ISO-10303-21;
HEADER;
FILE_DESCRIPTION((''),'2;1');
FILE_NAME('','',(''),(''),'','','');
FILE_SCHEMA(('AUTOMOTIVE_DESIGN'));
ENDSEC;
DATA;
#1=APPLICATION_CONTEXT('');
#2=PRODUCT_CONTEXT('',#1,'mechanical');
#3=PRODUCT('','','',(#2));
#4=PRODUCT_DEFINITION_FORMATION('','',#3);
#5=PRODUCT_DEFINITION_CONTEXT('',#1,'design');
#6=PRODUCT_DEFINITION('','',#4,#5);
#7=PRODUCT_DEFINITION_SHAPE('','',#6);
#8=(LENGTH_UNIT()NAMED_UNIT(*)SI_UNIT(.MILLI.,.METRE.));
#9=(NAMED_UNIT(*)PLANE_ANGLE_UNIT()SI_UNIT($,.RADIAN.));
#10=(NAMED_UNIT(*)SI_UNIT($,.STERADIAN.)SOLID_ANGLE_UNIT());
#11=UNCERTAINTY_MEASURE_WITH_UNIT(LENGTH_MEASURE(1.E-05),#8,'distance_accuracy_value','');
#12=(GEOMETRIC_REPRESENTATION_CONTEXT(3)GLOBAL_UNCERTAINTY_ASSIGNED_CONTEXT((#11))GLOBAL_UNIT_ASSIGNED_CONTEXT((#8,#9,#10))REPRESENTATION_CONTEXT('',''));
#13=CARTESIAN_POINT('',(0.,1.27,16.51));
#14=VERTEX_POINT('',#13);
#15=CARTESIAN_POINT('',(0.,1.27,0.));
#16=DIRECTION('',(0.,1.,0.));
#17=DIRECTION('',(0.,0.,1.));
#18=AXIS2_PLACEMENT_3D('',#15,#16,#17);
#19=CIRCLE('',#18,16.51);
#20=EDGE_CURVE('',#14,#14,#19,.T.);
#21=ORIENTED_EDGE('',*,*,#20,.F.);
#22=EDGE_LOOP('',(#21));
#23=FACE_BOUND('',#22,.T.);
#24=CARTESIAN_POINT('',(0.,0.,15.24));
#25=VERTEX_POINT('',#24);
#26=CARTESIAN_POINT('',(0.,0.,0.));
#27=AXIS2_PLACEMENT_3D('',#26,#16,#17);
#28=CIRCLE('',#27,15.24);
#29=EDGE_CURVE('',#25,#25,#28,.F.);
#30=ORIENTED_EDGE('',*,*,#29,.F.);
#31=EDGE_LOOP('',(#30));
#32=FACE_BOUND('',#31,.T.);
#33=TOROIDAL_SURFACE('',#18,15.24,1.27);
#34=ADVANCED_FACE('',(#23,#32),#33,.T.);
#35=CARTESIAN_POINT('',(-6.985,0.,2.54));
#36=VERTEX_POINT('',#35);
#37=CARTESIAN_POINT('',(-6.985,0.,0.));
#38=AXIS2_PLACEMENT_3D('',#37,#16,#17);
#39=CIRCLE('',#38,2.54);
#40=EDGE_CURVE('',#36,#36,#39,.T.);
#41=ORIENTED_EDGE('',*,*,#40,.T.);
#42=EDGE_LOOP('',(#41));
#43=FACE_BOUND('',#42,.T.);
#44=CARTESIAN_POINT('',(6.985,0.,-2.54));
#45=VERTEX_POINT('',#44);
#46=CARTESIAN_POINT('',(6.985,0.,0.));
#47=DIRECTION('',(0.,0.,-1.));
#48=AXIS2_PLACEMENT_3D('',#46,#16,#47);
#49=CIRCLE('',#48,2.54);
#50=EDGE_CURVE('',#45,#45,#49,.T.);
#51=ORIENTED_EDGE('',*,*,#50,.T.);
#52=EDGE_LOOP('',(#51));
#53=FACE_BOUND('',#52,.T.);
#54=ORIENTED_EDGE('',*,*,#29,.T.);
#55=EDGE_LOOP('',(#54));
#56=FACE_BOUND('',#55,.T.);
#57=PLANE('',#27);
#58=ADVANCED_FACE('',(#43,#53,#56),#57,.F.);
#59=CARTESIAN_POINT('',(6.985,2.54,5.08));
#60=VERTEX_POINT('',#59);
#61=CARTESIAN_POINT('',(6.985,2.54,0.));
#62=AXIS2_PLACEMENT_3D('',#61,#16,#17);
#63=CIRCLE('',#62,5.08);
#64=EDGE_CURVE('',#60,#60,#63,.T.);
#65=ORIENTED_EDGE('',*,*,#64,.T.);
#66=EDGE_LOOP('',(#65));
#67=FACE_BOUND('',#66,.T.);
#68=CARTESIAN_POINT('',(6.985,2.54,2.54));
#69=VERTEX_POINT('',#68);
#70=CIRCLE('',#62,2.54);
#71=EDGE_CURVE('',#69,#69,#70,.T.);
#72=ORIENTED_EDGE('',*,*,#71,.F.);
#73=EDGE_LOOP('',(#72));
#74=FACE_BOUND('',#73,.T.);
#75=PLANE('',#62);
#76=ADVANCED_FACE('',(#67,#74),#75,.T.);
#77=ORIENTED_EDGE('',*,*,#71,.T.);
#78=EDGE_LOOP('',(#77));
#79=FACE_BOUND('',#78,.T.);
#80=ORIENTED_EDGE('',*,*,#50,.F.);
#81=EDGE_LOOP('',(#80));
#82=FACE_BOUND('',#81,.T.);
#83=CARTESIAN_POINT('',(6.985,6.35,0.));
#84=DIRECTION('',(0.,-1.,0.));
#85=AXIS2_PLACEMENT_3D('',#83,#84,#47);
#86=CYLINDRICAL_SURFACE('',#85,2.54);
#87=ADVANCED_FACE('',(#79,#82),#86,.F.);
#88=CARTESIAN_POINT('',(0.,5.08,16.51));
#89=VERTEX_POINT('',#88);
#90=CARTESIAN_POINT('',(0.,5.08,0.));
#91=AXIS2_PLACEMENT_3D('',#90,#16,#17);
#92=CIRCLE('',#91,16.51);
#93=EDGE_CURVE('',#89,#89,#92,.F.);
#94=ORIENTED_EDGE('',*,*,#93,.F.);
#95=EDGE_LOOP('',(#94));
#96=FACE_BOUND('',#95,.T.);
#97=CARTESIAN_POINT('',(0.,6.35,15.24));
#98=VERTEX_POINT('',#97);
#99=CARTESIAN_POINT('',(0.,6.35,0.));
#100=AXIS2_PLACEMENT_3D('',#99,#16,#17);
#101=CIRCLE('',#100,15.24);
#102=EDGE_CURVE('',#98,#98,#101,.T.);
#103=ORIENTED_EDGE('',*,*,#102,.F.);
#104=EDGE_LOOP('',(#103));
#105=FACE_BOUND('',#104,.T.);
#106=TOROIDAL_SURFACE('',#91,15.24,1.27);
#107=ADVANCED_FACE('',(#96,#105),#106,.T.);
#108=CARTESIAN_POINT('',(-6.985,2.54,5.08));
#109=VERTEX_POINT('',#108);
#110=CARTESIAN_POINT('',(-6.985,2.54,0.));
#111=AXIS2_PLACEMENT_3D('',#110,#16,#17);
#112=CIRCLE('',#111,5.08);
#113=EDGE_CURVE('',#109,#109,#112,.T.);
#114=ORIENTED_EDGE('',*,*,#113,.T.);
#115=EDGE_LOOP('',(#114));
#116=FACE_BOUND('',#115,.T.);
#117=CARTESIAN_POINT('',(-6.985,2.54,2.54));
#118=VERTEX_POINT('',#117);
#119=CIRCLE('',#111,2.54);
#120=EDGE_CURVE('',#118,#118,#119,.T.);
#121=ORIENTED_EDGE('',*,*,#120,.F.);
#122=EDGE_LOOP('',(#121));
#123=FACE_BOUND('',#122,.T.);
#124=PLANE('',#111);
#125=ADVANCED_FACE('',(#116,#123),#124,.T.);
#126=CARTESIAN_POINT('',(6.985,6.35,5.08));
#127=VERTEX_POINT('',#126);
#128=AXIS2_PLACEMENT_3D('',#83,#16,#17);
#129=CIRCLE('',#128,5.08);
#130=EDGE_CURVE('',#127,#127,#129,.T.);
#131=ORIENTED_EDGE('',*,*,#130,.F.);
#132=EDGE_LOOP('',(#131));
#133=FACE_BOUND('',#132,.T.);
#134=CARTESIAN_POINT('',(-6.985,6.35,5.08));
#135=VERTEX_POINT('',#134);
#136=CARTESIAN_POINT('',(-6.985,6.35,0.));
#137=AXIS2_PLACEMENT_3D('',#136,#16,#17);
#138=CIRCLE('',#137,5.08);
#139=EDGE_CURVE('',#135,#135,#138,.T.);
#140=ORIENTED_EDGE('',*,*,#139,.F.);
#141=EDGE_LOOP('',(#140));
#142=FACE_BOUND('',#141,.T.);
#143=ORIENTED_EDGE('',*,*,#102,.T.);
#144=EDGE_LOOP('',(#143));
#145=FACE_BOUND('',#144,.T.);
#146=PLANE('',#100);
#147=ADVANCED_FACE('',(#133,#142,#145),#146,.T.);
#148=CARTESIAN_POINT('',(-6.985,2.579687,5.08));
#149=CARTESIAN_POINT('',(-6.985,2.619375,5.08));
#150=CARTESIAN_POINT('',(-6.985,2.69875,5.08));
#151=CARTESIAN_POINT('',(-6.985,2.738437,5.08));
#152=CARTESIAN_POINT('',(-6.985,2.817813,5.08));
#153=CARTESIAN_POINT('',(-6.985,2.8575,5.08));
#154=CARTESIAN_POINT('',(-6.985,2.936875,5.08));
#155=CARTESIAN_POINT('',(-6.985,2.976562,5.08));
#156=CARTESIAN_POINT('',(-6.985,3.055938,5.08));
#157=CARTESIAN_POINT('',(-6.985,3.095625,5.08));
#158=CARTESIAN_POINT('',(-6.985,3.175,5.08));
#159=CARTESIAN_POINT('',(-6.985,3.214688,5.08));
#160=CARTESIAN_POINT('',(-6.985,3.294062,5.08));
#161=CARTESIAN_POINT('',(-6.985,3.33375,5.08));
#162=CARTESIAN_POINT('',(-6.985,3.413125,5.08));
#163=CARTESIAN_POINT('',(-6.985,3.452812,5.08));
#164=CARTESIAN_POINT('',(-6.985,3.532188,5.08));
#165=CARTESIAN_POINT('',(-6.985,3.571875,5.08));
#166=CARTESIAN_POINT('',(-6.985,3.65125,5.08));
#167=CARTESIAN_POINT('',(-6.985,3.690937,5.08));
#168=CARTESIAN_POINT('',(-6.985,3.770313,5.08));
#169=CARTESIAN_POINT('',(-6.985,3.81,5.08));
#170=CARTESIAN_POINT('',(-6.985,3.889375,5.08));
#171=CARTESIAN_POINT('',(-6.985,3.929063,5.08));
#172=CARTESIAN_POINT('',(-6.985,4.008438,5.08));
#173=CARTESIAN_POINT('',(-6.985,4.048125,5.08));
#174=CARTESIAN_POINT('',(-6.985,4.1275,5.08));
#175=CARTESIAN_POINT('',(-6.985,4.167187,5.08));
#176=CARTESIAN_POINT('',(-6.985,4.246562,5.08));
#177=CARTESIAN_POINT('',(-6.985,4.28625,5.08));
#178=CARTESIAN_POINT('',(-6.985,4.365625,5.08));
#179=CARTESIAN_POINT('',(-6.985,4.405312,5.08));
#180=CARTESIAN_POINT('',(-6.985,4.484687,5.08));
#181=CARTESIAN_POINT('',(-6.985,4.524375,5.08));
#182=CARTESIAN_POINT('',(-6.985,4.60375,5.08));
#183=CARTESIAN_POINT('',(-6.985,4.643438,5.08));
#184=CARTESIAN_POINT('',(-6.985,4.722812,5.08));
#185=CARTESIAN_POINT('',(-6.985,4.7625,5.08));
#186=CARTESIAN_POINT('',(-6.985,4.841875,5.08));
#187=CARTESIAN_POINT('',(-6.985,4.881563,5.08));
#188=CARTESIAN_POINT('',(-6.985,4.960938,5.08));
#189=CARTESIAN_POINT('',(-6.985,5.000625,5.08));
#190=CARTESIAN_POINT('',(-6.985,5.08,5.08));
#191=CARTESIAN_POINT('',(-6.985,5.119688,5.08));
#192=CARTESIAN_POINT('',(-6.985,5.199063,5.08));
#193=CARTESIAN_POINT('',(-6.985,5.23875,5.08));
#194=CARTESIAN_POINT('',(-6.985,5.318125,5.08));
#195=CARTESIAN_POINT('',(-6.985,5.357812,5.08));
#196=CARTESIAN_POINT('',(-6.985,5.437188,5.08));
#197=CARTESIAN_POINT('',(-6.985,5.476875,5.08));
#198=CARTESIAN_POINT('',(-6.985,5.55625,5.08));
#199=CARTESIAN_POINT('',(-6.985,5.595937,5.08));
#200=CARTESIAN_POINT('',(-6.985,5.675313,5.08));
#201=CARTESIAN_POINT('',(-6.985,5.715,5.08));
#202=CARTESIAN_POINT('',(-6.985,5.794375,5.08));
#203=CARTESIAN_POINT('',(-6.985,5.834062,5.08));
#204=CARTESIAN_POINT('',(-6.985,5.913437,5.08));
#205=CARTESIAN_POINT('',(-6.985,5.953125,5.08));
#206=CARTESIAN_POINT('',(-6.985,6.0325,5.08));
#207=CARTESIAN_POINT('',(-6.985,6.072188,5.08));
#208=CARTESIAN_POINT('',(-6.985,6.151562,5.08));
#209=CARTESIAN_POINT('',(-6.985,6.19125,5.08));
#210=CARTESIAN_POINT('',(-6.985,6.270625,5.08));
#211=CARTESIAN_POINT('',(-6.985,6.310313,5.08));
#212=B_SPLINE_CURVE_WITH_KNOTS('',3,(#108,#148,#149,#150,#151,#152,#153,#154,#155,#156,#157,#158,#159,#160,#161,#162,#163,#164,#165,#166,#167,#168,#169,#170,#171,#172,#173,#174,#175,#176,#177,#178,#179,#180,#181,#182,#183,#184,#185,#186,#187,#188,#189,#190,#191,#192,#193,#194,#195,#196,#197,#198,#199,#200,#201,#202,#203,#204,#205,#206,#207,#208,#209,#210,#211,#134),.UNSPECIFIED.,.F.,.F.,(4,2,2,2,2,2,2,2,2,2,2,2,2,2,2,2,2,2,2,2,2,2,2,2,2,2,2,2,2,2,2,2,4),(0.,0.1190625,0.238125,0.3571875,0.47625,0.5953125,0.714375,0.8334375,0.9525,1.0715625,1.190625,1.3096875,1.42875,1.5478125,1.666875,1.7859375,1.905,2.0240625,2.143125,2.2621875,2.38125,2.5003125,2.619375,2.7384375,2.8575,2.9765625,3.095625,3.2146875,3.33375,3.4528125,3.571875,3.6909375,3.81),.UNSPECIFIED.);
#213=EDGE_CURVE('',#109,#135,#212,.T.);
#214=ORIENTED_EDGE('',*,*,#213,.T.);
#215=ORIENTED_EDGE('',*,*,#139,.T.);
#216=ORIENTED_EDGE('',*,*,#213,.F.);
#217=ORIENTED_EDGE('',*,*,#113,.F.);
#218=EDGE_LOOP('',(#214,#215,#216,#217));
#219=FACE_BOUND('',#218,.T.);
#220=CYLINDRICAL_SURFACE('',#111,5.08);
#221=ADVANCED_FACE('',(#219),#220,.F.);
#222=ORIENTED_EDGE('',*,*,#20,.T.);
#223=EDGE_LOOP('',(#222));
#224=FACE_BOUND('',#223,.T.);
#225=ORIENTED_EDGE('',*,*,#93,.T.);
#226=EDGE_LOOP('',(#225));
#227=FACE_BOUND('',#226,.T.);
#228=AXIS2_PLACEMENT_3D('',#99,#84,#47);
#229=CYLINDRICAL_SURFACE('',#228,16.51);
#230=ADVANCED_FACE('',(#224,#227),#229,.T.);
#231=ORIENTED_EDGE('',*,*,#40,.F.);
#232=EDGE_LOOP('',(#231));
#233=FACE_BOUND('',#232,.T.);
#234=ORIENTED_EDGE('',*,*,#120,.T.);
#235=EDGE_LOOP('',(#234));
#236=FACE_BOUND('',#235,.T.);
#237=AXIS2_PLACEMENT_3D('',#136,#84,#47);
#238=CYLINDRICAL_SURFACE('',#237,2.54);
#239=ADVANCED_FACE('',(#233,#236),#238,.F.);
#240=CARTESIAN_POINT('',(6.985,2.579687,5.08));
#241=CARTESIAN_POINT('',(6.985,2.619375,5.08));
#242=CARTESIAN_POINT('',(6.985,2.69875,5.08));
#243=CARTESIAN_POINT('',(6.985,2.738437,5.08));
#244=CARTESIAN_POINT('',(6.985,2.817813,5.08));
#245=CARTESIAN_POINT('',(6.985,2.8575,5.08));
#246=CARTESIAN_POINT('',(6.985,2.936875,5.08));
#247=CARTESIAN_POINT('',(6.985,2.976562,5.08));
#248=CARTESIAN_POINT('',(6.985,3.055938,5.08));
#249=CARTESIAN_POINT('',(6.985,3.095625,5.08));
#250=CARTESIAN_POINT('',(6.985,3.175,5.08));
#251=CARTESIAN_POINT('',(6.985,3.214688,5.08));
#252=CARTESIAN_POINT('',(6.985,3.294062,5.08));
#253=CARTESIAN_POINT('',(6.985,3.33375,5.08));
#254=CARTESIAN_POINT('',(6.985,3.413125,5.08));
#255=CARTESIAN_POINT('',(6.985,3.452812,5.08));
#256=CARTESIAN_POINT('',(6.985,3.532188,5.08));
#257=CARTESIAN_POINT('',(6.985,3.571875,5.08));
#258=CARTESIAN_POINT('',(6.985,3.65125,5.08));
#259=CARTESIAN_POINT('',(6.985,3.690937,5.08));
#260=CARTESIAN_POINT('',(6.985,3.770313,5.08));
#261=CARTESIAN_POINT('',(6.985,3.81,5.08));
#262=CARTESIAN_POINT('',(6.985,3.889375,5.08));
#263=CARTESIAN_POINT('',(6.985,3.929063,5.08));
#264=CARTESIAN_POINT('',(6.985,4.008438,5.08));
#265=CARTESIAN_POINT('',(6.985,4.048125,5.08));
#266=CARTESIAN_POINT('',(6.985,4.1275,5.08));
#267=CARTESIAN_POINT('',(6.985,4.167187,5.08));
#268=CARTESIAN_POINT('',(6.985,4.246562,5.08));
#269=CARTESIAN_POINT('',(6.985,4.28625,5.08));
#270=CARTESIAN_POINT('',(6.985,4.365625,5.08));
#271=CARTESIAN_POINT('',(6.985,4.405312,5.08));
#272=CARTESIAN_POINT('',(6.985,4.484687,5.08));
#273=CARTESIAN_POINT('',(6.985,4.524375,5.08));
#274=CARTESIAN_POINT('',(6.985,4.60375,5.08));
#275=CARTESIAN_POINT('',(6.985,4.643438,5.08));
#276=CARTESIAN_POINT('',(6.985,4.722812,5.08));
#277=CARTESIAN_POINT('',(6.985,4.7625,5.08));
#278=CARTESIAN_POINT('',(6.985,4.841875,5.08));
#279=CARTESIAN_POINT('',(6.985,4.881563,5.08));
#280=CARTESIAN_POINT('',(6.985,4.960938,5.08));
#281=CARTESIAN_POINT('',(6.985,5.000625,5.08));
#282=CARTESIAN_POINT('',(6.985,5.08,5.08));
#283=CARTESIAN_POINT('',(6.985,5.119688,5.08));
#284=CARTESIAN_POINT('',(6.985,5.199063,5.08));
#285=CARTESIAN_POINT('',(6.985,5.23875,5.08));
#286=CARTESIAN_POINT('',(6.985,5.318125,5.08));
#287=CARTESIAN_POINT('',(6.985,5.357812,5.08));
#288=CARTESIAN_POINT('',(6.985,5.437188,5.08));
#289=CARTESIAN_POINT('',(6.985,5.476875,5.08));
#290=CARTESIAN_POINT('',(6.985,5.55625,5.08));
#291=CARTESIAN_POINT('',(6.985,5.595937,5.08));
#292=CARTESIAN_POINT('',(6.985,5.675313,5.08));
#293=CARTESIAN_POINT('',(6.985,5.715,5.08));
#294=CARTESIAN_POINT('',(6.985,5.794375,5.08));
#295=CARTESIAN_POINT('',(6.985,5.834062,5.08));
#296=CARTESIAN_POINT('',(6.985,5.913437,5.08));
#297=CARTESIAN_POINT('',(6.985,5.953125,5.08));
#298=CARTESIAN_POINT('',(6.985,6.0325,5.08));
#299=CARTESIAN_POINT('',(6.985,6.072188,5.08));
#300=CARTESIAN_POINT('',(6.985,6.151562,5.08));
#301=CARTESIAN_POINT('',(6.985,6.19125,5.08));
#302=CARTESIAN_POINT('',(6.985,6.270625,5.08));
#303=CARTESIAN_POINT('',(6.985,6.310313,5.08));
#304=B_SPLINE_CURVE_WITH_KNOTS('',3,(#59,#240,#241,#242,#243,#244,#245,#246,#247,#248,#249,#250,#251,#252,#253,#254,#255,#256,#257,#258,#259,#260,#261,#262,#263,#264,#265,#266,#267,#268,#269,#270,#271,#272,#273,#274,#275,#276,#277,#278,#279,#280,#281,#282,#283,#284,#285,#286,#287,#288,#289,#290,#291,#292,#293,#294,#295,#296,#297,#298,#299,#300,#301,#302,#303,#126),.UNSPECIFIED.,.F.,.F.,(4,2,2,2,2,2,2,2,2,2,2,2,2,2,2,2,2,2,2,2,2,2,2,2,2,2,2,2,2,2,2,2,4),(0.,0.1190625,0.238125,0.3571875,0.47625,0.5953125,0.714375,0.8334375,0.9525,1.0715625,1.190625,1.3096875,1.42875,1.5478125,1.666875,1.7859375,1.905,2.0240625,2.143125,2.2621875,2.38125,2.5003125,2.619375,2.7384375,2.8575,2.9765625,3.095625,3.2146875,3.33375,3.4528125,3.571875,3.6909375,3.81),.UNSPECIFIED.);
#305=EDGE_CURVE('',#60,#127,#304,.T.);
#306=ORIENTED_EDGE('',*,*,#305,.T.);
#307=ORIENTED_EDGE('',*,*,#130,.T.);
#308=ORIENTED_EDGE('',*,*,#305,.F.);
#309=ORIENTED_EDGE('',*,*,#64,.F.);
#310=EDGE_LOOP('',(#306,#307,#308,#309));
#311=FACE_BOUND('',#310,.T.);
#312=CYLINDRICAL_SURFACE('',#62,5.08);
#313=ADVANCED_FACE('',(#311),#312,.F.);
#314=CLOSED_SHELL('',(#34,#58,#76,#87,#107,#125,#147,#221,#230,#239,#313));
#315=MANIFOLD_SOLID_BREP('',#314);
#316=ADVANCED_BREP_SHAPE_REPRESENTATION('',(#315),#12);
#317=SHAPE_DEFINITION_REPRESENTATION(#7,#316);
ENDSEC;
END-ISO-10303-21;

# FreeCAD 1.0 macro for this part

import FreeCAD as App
import Part
import Sketcher
from FreeCAD import Vector
Q = App.Units.Quantity


def edges_at(feature, points):
    """Names of the edges that pass closest to the given points."""
    edges = feature.Shape.Edges
    near = lambda p: min(range(len(edges)), key=lambda i: edges[i].distToShape(Part.Vertex(*p))[0])
    return sorted({f"Edge{near(p) + 1}" for p in points})

doc = App.newDocument("Part")
params = doc.addObject("Spreadsheet::Sheet", "Params")
for row, (alias, value) in enumerate([
    ("sketch1_diameter", "1.3 in"),
    ("sketch1_diameter2", "0.2 in"),
    ("pad1_length", "0.25 in"),
    ("sketch2_diameter", "0.4 in"),
    ("pocket1_length", "0.15 in"),
    ("fillet_radius", "0.05 in"),
], start=1):
    params.set(f"A{row}", alias)
    params.set(f"B{row}", "=" + value)
    params.setAlias(f"B{row}", alias)

body = doc.addObject("PartDesign::Body", "Body")

# Sketch on XZ plane
sketch1 = body.newObject("Sketcher::SketchObject", "Sketch")
sketch1.AttachmentSupport = (doc.getObject("XZ_Plane"), [""])
sketch1.MapMode = "FlatFace"
sketch1.addGeometry([
    Part.Circle(Vector(0, 0, 0), Vector(0, 0, 1), 16.5),
    Part.Circle(Vector(-7, 0, 0), Vector(0, 0, 1), 2.5),
    Part.Circle(Vector(7, 0, 0), Vector(0, 0, 1), 2.5),
], False)
sketch1.addConstraint([
    Sketcher.Constraint("Coincident", 0, 3, -1, 1),
    Sketcher.Constraint("Equal", 1, 2),
    Sketcher.Constraint("Symmetric", 1, 3, 2, 3, -1, 1),
    Sketcher.Constraint("PointOnObject", 1, 3, -1),
    Sketcher.Constraint("Diameter", 0, Q("1.3 in")),
    Sketcher.Constraint("Diameter", 1, Q("0.2 in")),
    Sketcher.Constraint("DistanceX", 1, 3, 2, 3, Q("0.55 in")),
])
sketch1.setExpression("Constraints[4]", "Params.sketch1_diameter")
sketch1.setExpression("Constraints[5]", "Params.sketch1_diameter2")
pad1 = body.newObject("PartDesign::Pad", "Pad")
pad1.Profile = sketch1
pad1.setExpression("Length", "Params.pad1_length")
pad1.Reversed = True

# Sketch on XZ plane
sketch2 = body.newObject("Sketcher::SketchObject", "Sketch001")
sketch2.AttachmentSupport = (doc.getObject("XZ_Plane"), [""])
sketch2.MapMode = "FlatFace"
sketch2.AttachmentOffset = App.Placement(Vector(0, 0, -0.25 * 25.4), App.Rotation())
sketch2.addGeometry([
    Part.Circle(Vector(-7, 0, 0), Vector(0, 0, 1), 5),
    Part.Circle(Vector(7, 0, 0), Vector(0, 0, 1), 5),
], False)
sketch2.addConstraint([
    Sketcher.Constraint("Equal", 0, 1),
    Sketcher.Constraint("Symmetric", 0, 3, 1, 3, -1, 1),
    Sketcher.Constraint("PointOnObject", 0, 3, -1),
    Sketcher.Constraint("Diameter", 0, Q("0.4 in")),
    Sketcher.Constraint("DistanceX", 0, 3, 1, 3, Q("0.55 in")),
])
sketch2.setExpression("Constraints[3]", "Params.sketch2_diameter")
pocket1 = body.newObject("PartDesign::Pocket", "Pocket")
pocket1.Profile = sketch2
pocket1.setExpression("Length", "Params.pocket1_length")
pocket1.Reversed = True
doc.recompute()

fillet = body.newObject("PartDesign::Fillet", "Fillet")
fillet.Base = (pocket1, edges_at(pocket1, [(0, 0, -16.51), (0, 6.35, -16.51)]))
fillet.setExpression("Radius", "Params.fillet_radius")

doc.recompute()
